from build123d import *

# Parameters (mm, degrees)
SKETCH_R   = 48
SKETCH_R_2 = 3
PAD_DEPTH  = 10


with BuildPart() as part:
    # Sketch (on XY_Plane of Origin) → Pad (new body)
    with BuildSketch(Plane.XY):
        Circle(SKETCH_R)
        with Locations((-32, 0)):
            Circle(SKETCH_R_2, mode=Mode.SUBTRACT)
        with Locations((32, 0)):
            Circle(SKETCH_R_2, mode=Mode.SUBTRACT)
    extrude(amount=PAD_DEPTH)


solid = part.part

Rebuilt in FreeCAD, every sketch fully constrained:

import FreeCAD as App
import Part
import Sketcher
from FreeCAD import Vector

doc = App.newDocument("Part")
body = doc.addObject("PartDesign::Body", "Body")

# Sketch on XY plane
sketch1 = doc.addObject("Sketcher::SketchObject", "Sketch")
body.addObject(sketch1)
sketch1.AttachmentSupport = (doc.XY_Plane, [""])
sketch1.MapMode = "FlatFace"
sketch1.addGeometry([
    Part.Circle(Vector(0, 0, 0), Vector(0, 0, 1), 48),
    Part.Circle(Vector(-32, 0, 0), Vector(0, 0, 1), 3),
    Part.Circle(Vector(32, 0, 0), Vector(0, 0, 1), 3),
], False)
sketch1.addConstraint([
    Sketcher.Constraint("Coincident", 0, 3, -1, 1),
    Sketcher.Constraint("Equal", 1, 2),
    Sketcher.Constraint("Symmetric", 1, 3, 2, 3, -1, 1),
    Sketcher.Constraint("PointOnObject", 1, 3, -1),
    Sketcher.Constraint("Diameter", 0, 96.0),
    Sketcher.Constraint("Diameter", 1, 6.0),
    Sketcher.Constraint("DistanceX", 1, 3, -1, 1, 32.0),
])
pad1 = doc.addObject("PartDesign::Pad", "Pad")
body.addObject(pad1)
pad1.Profile = sketch1
pad1.Length = 10

doc.recompute()
